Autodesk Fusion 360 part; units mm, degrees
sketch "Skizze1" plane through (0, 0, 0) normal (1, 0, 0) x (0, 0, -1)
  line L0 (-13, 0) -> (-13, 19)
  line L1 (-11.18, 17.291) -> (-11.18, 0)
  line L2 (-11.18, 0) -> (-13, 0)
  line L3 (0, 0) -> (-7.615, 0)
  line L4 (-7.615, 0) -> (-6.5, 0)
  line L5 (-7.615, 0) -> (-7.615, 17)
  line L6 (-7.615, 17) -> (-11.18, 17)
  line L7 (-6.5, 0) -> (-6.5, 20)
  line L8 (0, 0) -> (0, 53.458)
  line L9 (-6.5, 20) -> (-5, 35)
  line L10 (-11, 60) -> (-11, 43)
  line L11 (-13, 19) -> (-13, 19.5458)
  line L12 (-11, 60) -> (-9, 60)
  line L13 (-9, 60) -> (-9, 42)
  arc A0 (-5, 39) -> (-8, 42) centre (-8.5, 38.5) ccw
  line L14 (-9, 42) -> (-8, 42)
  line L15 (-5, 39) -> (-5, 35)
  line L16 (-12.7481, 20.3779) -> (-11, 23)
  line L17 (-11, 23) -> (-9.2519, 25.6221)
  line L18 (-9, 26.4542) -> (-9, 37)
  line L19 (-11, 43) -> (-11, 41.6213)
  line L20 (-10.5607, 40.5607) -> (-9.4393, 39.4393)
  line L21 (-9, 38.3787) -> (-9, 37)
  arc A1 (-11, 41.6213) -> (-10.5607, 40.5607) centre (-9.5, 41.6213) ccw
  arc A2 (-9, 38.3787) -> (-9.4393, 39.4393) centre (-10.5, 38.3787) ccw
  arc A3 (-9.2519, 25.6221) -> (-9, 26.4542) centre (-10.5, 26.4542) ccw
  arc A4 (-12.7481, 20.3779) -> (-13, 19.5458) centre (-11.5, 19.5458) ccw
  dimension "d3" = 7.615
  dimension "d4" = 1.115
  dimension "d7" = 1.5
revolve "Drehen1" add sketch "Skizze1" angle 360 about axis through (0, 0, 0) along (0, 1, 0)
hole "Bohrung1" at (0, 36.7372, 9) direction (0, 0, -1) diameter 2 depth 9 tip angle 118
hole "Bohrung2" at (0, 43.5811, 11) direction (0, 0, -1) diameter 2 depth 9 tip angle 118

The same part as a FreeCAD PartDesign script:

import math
import FreeCAD as App
import Part
import Sketcher

V = App.Vector
Q = App.Units.Quantity

doc = App.newDocument("Part")
body = doc.addObject("PartDesign::Body", "Body")

sketch1 = body.newObject("Sketcher::SketchObject", "Sketch")
sketch1.AttachmentSupport = (doc.getObject("YZ_Plane"), [""])
sketch1.MapMode = "FlatFace"
sketch1.addGeometry(Part.LineSegment(V(19.5, 13, 0), V(0, 13, 0)), False)
sketch1.addGeometry(Part.LineSegment(V(0, 13, 0), V(0, 11.2, 0)), False)
sketch1.addGeometry(Part.LineSegment(V(0, 11.2, 0), V(17, 11.2, 0)), False)
sketch1.addGeometry(Part.LineSegment(V(17, 11.2, 0), V(17, 7.6, 0)), False)
sketch1.addGeometry(Part.LineSegment(V(17, 7.6, 0), V(0, 7.6, 0)), False)
sketch1.addGeometry(Part.LineSegment(V(0, 7.6, 0), V(0, 6.5, 0)), False)
sketch1.addGeometry(Part.LineSegment(V(0, 6.5, 0), V(20, 6.5, 0)), False)
sketch1.addGeometry(Part.LineSegment(V(20, 6.5, 0), V(35, 5, 0)), False)
sketch1.addGeometry(Part.LineSegment(V(35, 5, 0), V(39, 5, 0)), False)
sketch1.addGeometry(Part.ArcOfCircle(Part.Circle(V(38.5, 8.5, 0), V(0, 0, 1), 3.5), math.radians(-82), math.radians(-8)), False)
sketch1.addGeometry(Part.LineSegment(V(42, 8, 0), V(42, 9, 0)), False)
sketch1.addGeometry(Part.LineSegment(V(42, 9, 0), V(60, 9, 0)), False)
sketch1.addGeometry(Part.LineSegment(V(60, 9, 0), V(60, 11, 0)), False)
sketch1.addGeometry(Part.LineSegment(V(60, 11, 0), V(41.6, 11, 0)), False)
sketch1.addGeometry(Part.ArcOfCircle(Part.Circle(V(41.6, 9.5, 0), V(0, 0, 1), 1.5), math.radians(90), math.radians(135)), False)
sketch1.addGeometry(Part.LineSegment(V(40.6, 10.6, 0), V(39.4, 9.4, 0)), False)
sketch1.addGeometry(Part.ArcOfCircle(Part.Circle(V(38.4, 10.5, 0), V(0, 0, 1), 1.5), math.radians(-90), math.radians(-45)), False)
sketch1.addGeometry(Part.LineSegment(V(38.4, 9, 0), V(26.5, 9, 0)), False)
sketch1.addGeometry(Part.ArcOfCircle(Part.Circle(V(26.5, 10.5, 0), V(0, 0, 1), 1.5), math.radians(-124), math.radians(-90)), False)
sketch1.addGeometry(Part.LineSegment(V(25.6, 9.3, 0), V(20.4, 12.7, 0)), False)
sketch1.addGeometry(Part.ArcOfCircle(Part.Circle(V(19.5, 11.5, 0), V(0, 0, 1), 1.5), math.radians(56), math.radians(90)), False)
sketch1.addConstraint(Sketcher.Constraint("Coincident", 0, 2, 1, 1))
sketch1.addConstraint(Sketcher.Constraint("Coincident", 1, 2, 2, 1))
sketch1.addConstraint(Sketcher.Constraint("Coincident", 2, 2, 3, 1))
sketch1.addConstraint(Sketcher.Constraint("Coincident", 3, 2, 4, 1))
sketch1.addConstraint(Sketcher.Constraint("Coincident", 4, 2, 5, 1))
sketch1.addConstraint(Sketcher.Constraint("Coincident", 5, 2, 6, 1))
sketch1.addConstraint(Sketcher.Constraint("Coincident", 6, 2, 7, 1))
sketch1.addConstraint(Sketcher.Constraint("Coincident", 7, 2, 8, 1))
sketch1.addConstraint(Sketcher.Constraint("Coincident", 8, 2, 9, 1))
sketch1.addConstraint(Sketcher.Constraint("Coincident", 9, 2, 10, 1))
sketch1.addConstraint(Sketcher.Constraint("Coincident", 10, 2, 11, 1))
sketch1.addConstraint(Sketcher.Constraint("Coincident", 11, 2, 12, 1))
sketch1.addConstraint(Sketcher.Constraint("Coincident", 12, 2, 13, 1))
sketch1.addConstraint(Sketcher.Constraint("Tangent", 13, 2, 14, 1))
sketch1.addConstraint(Sketcher.Constraint("Tangent", 14, 2, 15, 1))
sketch1.addConstraint(Sketcher.Constraint("Tangent", 15, 2, 16, 2))
sketch1.addConstraint(Sketcher.Constraint("Tangent", 16, 1, 17, 1))
sketch1.addConstraint(Sketcher.Constraint("Tangent", 17, 2, 18, 2))
sketch1.addConstraint(Sketcher.Constraint("Tangent", 18, 1, 19, 1))
sketch1.addConstraint(Sketcher.Constraint("Tangent", 19, 2, 20, 1))
sketch1.addConstraint(Sketcher.Constraint("Tangent", 20, 2, 0, 1))
sketch1.addConstraint(Sketcher.Constraint("Horizontal", 0))
sketch1.addConstraint(Sketcher.Constraint("Vertical", 1))
sketch1.addConstraint(Sketcher.Constraint("Horizontal", 2))
sketch1.addConstraint(Sketcher.Constraint("Vertical", 3))
sketch1.addConstraint(Sketcher.Constraint("Horizontal", 4))
sketch1.addConstraint(Sketcher.Constraint("Vertical", 5))
sketch1.addConstraint(Sketcher.Constraint("Horizontal", 6))
sketch1.addConstraint(Sketcher.Constraint("Horizontal", 8))
sketch1.addConstraint(Sketcher.Constraint("Vertical", 10))
sketch1.addConstraint(Sketcher.Constraint("Horizontal", 11))
sketch1.addConstraint(Sketcher.Constraint("Vertical", 12))
sketch1.addConstraint(Sketcher.Constraint("Horizontal", 13))
sketch1.addConstraint(Sketcher.Constraint("Horizontal", 17))
sketch1.addConstraint(Sketcher.Constraint("Equal", 14, 16))
sketch1.addConstraint(Sketcher.Constraint("Equal", 16, 18))
sketch1.addConstraint(Sketcher.Constraint("Equal", 18, 20))
sketch1.addConstraint(Sketcher.Constraint("PointOnObject", 0, 2, -2))
sketch1.addConstraint(Sketcher.Constraint("PointOnObject", 4, 2, -2))
sketch1.addConstraint(Sketcher.Constraint("Horizontal", 11, 2, 16, 1))
sketch1.addConstraint(Sketcher.Constraint("Radius", 14, 1.5))
sketch1.addConstraint(Sketcher.Constraint("DistanceY", 7, 2, 6, 2, 1.5))
sketch1.addConstraint(Sketcher.Constraint("DistanceY", 9, 2, 14, 3, 1.5))
sketch1.addConstraint(Sketcher.Constraint("DistanceX", 2, 1, 2, 2, 17.0))
sketch1.addConstraint(Sketcher.Constraint("DistanceX", 6, 1, 6, 2, 20.0))
sketch1.addConstraint(Sketcher.Constraint("DistanceX", 8, 1, 8, 2, 4.0))
sketch1.addConstraint(Sketcher.Constraint("DistanceX", 11, 1, 11, 2, 18.0))
sketch1.addConstraint(Sketcher.Constraint("DistanceY", 5, 2, 5, 1, 1.115))
sketch1.addConstraint(Sketcher.Constraint("DistanceY", 10, 1, 10, 2, 1.0))
sketch1.addConstraint(Sketcher.Constraint("Angle", 15, Q("-135 deg")))
sketch1.addConstraint(Sketcher.Constraint("DistanceY", -1, 1, 3, 2, 7.615))
sketch1.addConstraint(Sketcher.Constraint("DistanceY", -1, 1, 0, 2, 13.0))
sketch1.addConstraint(Sketcher.Constraint("DistanceX", -1, 1, 7, 2, 35.0))
sketch1.addConstraint(Sketcher.Constraint("DistanceX", -1, 1, 9, 2, 42.0))
sketch1.addConstraint(Sketcher.Constraint("DistanceY", -1, 1, 9, 2, 8.0))
sketch1.addConstraint(Sketcher.Constraint("DistanceY", 9, 3, 14, 3, 1.0))
sketch1.addConstraint(Sketcher.Constraint("DistanceY", 1, 2, 1, 1, 1.82))
sketch1.addConstraint(Sketcher.Constraint("Angle", 19, Q("146.3094 deg")))
sketch1.addConstraint(Sketcher.Constraint("DistanceX", 0, 2, 0, 1, 19.5458))
sketch1.addConstraint(Sketcher.Constraint("DistanceX", 13, 2, 13, 1, 18.3787))
revolution = body.newObject("PartDesign::Revolution", "Revolution")
revolution.Profile = sketch1
revolution.ReferenceAxis = (sketch1, ["H_Axis"])
revolution.Angle = 360

sketch2 = body.newObject("Sketcher::SketchObject", "Sketch001")
sketch2.AttachmentSupport = (doc.getObject("XY_Plane"), [""])
sketch2.MapMode = "FlatFace"
sketch2.AttachmentOffset = App.Placement(V(0, 0, 9), App.Rotation())
sketch2.addGeometry(Part.Circle(V(0, 36.7, 0), V(0, 0, 1), 1), False)
sketch2.addConstraint(Sketcher.Constraint("PointOnObject", 0, 3, -2))
sketch2.addConstraint(Sketcher.Constraint("Diameter", 0, 2.0))
sketch2.addConstraint(Sketcher.Constraint("DistanceY", -1, 1, 0, 3, 36.7372))
doc.recompute()
hole = body.newObject("PartDesign::Hole", "Hole")
hole.Profile = sketch2
hole.ThreadType = "None"
hole.Diameter = 2
hole.DepthType = "Dimension"
hole.Depth = 9
hole.DrillPoint = "Angled"
hole.DrillPointAngle = 118

sketch3 = body.newObject("Sketcher::SketchObject", "Sketch002")
sketch3.AttachmentSupport = (doc.getObject("XY_Plane"), [""])
sketch3.MapMode = "FlatFace"
sketch3.AttachmentOffset = App.Placement(V(0, 0, 11), App.Rotation())
sketch3.addGeometry(Part.Circle(V(0, 43.6, 0), V(0, 0, 1), 1), False)
sketch3.addConstraint(Sketcher.Constraint("PointOnObject", 0, 3, -2))
sketch3.addConstraint(Sketcher.Constraint("Diameter", 0, 2.0))
sketch3.addConstraint(Sketcher.Constraint("DistanceY", -1, 1, 0, 3, 43.581))
doc.recompute()
hole2 = body.newObject("PartDesign::Hole", "Hole001")
hole2.Profile = sketch3
hole2.ThreadType = "None"
hole2.Diameter = 2
hole2.DepthType = "Dimension"
hole2.Depth = 9
hole2.DrillPoint = "Angled"
hole2.DrillPointAngle = 118

doc.recompute()
